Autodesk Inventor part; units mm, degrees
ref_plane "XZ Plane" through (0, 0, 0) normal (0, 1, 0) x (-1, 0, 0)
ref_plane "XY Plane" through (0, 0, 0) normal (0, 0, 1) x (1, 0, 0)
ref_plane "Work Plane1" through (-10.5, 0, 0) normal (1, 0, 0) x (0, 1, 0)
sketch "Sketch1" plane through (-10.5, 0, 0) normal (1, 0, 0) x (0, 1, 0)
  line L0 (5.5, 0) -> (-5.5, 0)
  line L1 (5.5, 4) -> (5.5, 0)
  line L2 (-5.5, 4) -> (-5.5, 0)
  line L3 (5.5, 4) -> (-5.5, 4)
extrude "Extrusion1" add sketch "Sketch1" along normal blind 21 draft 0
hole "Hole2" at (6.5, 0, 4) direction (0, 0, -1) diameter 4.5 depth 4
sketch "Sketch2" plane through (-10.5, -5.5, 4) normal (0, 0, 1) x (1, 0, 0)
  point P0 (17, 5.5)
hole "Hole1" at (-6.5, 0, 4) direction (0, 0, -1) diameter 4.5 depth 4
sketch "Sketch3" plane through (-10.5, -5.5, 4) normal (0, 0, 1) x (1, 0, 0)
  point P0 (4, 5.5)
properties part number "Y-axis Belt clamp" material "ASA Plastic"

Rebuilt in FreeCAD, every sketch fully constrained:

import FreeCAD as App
import Part
import Sketcher

doc = App.newDocument("Part")
body = doc.addObject("PartDesign::Body", "Body")

sketch1 = body.newObject("Sketcher::SketchObject", "Sketch")
sketch1.AttachmentSupport = (doc.getObject("YZ_Plane"), [""])
sketch1.MapMode = "FlatFace"
sketch1.AttachmentOffset = App.Placement(App.Vector(0, 0, -10.5), App.Rotation())
sketch1.addGeometry([
    Part.LineSegment(App.Vector(-5.5, 0, 0), App.Vector(5.5, 0, 0)),
    Part.LineSegment(App.Vector(5.5, 0, 0), App.Vector(5.5, 4, 0)),
    Part.LineSegment(App.Vector(5.5, 4, 0), App.Vector(-5.5, 4, 0)),
    Part.LineSegment(App.Vector(-5.5, 4, 0), App.Vector(-5.5, 0, 0)),
], False)
sketch1.addConstraint([
    Sketcher.Constraint("Coincident", 0, 2, 1, 1),
    Sketcher.Constraint("Coincident", 1, 2, 2, 1),
    Sketcher.Constraint("Coincident", 2, 2, 3, 1),
    Sketcher.Constraint("Coincident", 3, 2, 0, 1),
    Sketcher.Constraint("Horizontal", 0),
    Sketcher.Constraint("Vertical", 1),
    Sketcher.Constraint("Horizontal", 2),
    Sketcher.Constraint("Vertical", 3),
    Sketcher.Constraint("Symmetric", 0, 2, 3, 2, -1, 1),
    Sketcher.Constraint("DistanceX", 0, 1, 0, 2, 11.0),
    Sketcher.Constraint("DistanceY", 1, 1, 1, 2, 4.0),
])
pad1 = body.newObject("PartDesign::Pad", "Pad")
pad1.Profile = sketch1
pad1.Length = 21

sketch2 = body.newObject("Sketcher::SketchObject", "Sketch001")
sketch2.AttachmentSupport = (doc.getObject("XY_Plane"), [""])
sketch2.MapMode = "FlatFace"
sketch2.AttachmentOffset = App.Placement(App.Vector(0, 0, 4), App.Rotation())
sketch2.addGeometry(Part.Circle(App.Vector(6.5, 0, 0), App.Vector(0, 0, 1), 2.25), False)
sketch2.addConstraint([
    Sketcher.Constraint("PointOnObject", 0, 3, -1),
    Sketcher.Constraint("Diameter", 0, 4.5),
    Sketcher.Constraint("DistanceX", -1, 1, 0, 3, 6.5),
])
doc.recompute()
hole = body.newObject("PartDesign::Hole", "Hole")
hole.Profile = sketch2
hole.ThreadType = "None"
hole.Diameter = 4.5
hole.DepthType = "Dimension"
hole.Depth = 4
hole.DrillPoint = "Flat"

sketch3 = body.newObject("Sketcher::SketchObject", "Sketch002")
sketch3.AttachmentSupport = (doc.getObject("XY_Plane"), [""])
sketch3.MapMode = "FlatFace"
sketch3.AttachmentOffset = App.Placement(App.Vector(0, 0, 4), App.Rotation())
sketch3.addGeometry(Part.Circle(App.Vector(-6.5, 0, 0), App.Vector(0, 0, 1), 2.25), False)
sketch3.addConstraint([
    Sketcher.Constraint("PointOnObject", 0, 3, -1),
    Sketcher.Constraint("Diameter", 0, 4.5),
    Sketcher.Constraint("DistanceX", 0, 3, -1, 1, 6.5),
])
doc.recompute()
hole2 = body.newObject("PartDesign::Hole", "Hole001")
hole2.Profile = sketch3
hole2.ThreadType = "None"
hole2.Diameter = 4.5
hole2.DepthType = "Dimension"
hole2.Depth = 4
hole2.DrillPoint = "Flat"

doc.recompute()
